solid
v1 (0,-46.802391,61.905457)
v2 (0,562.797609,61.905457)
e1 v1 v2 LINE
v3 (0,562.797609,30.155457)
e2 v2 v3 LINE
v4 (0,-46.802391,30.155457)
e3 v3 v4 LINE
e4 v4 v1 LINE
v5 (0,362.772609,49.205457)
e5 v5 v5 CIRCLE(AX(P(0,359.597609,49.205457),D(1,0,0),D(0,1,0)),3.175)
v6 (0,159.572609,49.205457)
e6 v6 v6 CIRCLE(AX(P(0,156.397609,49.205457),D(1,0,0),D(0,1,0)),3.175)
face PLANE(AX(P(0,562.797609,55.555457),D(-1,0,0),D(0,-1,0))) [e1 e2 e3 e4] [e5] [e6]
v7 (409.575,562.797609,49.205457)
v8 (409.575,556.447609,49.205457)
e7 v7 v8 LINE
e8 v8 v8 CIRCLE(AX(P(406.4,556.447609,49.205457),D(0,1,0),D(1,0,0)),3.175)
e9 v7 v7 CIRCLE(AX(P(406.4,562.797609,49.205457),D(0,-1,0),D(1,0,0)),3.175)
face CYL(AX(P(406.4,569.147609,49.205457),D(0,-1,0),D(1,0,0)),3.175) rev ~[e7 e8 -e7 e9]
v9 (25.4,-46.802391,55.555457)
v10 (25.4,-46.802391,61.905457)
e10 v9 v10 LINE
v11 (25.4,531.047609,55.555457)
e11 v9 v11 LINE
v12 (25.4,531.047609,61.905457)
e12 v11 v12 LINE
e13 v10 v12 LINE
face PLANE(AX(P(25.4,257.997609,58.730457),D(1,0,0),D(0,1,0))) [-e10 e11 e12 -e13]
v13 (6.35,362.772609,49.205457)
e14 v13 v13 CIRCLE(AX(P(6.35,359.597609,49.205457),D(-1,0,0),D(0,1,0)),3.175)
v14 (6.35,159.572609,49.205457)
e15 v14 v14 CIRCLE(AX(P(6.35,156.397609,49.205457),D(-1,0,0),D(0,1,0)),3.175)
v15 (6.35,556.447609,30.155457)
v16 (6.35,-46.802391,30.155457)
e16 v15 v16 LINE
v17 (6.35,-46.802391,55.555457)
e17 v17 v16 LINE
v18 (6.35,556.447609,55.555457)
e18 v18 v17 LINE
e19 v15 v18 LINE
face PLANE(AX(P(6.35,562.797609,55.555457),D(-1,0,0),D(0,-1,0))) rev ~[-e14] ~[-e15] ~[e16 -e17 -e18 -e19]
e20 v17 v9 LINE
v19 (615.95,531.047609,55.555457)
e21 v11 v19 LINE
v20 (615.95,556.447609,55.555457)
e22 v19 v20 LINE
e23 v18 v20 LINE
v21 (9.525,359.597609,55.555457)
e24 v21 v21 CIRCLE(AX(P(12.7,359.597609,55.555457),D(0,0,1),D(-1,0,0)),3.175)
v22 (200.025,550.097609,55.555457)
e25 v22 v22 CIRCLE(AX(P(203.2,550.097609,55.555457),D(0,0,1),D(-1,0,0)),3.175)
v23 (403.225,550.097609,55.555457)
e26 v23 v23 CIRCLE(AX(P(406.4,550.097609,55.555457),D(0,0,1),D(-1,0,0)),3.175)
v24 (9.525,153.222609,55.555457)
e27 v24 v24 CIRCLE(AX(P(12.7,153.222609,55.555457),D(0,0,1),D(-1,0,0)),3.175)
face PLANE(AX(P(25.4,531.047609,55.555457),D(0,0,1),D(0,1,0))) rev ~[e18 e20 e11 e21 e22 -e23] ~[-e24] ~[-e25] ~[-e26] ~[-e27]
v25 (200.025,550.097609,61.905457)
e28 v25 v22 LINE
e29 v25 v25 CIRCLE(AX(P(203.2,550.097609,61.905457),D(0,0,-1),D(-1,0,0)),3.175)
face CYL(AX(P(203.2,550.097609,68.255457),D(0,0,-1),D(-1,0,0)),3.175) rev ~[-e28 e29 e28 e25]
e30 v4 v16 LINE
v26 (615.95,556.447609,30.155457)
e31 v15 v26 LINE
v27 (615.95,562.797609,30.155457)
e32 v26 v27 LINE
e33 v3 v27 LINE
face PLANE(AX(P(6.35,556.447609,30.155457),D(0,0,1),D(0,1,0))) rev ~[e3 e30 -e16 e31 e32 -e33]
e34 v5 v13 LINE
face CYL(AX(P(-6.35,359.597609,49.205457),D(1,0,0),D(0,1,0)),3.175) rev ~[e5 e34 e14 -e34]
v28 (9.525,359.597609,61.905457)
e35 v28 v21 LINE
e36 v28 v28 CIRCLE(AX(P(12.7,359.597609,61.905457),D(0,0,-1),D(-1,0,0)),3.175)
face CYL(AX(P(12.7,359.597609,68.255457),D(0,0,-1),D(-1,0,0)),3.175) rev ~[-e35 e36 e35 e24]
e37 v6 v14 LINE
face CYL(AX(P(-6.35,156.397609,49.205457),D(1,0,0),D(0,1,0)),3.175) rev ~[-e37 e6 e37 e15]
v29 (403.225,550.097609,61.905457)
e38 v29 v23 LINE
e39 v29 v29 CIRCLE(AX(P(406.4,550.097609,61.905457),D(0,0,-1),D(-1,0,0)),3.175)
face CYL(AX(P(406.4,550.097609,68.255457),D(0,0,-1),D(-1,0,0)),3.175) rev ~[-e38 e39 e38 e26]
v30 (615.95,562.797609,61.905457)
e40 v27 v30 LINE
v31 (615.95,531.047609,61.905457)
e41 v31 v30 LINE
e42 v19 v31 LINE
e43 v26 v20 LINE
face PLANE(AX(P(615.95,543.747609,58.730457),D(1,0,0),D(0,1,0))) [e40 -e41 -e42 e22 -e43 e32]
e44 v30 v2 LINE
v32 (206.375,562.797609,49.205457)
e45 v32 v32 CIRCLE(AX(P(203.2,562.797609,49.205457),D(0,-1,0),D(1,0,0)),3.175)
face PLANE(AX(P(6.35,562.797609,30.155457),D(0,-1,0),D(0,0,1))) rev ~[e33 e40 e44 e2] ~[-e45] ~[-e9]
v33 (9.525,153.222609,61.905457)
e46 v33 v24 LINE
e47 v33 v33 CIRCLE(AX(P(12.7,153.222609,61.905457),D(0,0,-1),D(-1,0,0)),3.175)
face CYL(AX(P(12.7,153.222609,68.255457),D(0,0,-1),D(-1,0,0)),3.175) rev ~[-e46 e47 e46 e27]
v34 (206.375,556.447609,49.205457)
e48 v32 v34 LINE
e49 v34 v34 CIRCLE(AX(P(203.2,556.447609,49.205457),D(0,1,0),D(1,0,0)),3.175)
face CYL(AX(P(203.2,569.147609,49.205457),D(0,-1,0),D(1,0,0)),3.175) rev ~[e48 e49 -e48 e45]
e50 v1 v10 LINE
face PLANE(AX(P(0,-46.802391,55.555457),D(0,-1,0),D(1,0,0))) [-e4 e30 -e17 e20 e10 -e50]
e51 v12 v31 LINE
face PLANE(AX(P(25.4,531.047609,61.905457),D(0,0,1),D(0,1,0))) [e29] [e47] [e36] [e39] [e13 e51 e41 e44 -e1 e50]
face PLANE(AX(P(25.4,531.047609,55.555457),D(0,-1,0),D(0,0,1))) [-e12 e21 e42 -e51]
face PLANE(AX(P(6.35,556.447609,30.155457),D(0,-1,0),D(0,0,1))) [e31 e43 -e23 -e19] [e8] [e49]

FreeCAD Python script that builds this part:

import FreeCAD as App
import Part
import Sketcher
from FreeCAD import Vector
Q = App.Units.Quantity


def add_polygon(sketch, points):
    """Adds a closed chain of lines whose ends are joined by coincident constraints."""
    first, n = sketch.GeometryCount, len(points)
    for a, b in zip(points, points[1:] + points[:1]):
        sketch.addGeometry(Part.LineSegment(App.Vector(*a, 0), App.Vector(*b, 0)), False)
    for i in range(n):
        sketch.addConstraint(Sketcher.Constraint("Coincident", first + i, 2, first + (i + 1) % n, 1))

doc = App.newDocument("Part")
body = doc.addObject("PartDesign::Body", "Body")

sketch1 = body.newObject("Sketcher::SketchObject", "Sketch")
sketch1.AttachmentSupport = (doc.getObject("YZ_Plane"), [""])
sketch1.MapMode = "FlatFace"
add_polygon(sketch1, [(-47, 62), (-47, 56), (563, 56), (563, 62)])
sketch1.addConstraint(Sketcher.Constraint("Vertical", 0))
sketch1.addConstraint(Sketcher.Constraint("Horizontal", 1))
sketch1.addConstraint(Sketcher.Constraint("Vertical", 2))
sketch1.addConstraint(Sketcher.Constraint("Horizontal", 3))
sketch1.addConstraint(Sketcher.Constraint("DistanceX", 1, 1, 1, 2, Q("24 in")))
sketch1.addConstraint(Sketcher.Constraint("DistanceY", 0, 2, 0, 1, Q("0.25 in")))
sketch1.addConstraint(Sketcher.Constraint("DistanceX", 0, 2, -1, 1, Q("46.802391 mm")))
sketch1.addConstraint(Sketcher.Constraint("DistanceY", -1, 1, 0, 2, Q("55.555457 mm")))
pad1 = body.newObject("PartDesign::Pad", "Pad")
pad1.Profile = sketch1
pad1.Length = Q("1 in")

sketch2 = body.newObject("Sketcher::SketchObject", "Sketch001")
sketch2.AttachmentSupport = (doc.getObject("XY_Plane"), [""])
sketch2.MapMode = "FlatFace"
sketch2.AttachmentOffset = App.Placement(Vector(0, 0, 55.555457), App.Rotation())
add_polygon(sketch2, [(0, -47), (0, 563), (6, 563), (6, -47)])
sketch2.addConstraint(Sketcher.Constraint("Vertical", 0))
sketch2.addConstraint(Sketcher.Constraint("Horizontal", 1))
sketch2.addConstraint(Sketcher.Constraint("Vertical", 2))
sketch2.addConstraint(Sketcher.Constraint("Horizontal", 3))
sketch2.addConstraint(Sketcher.Constraint("PointOnObject", 0, 2, -2))
sketch2.addConstraint(Sketcher.Constraint("DistanceY", 0, 1, 0, 2, Q("24 in")))
sketch2.addConstraint(Sketcher.Constraint("DistanceX", 1, 1, 1, 2, Q("0.25 in")))
sketch2.addConstraint(Sketcher.Constraint("DistanceY", -1, 1, 0, 2, Q("562.797609 mm")))
pad2 = body.newObject("PartDesign::Pad", "Pad001")
pad2.Profile = sketch2
pad2.Length = Q("1 in")
pad2.Reversed = True

sketch3 = body.newObject("Sketcher::SketchObject", "Sketch002")
sketch3.AttachmentSupport = (doc.getObject("YZ_Plane"), [""])
sketch3.MapMode = "FlatFace"
sketch3.AttachmentOffset = App.Placement(Vector(0, 0, 0.25 * 25.4), App.Rotation())
add_polygon(sketch3, [(556, 62), (556, 30), (563, 30), (563, 62)])
sketch3.addConstraint(Sketcher.Constraint("Vertical", 0))
sketch3.addConstraint(Sketcher.Constraint("Horizontal", 1))
sketch3.addConstraint(Sketcher.Constraint("Vertical", 2))
sketch3.addConstraint(Sketcher.Constraint("Horizontal", 3))
sketch3.addConstraint(Sketcher.Constraint("DistanceX", 1, 1, 1, 2, Q("0.25 in")))
sketch3.addConstraint(Sketcher.Constraint("DistanceY", 0, 2, 0, 1, Q("1.25 in")))
sketch3.addConstraint(Sketcher.Constraint("DistanceX", -1, 1, 0, 2, Q("556.447609 mm")))
sketch3.addConstraint(Sketcher.Constraint("DistanceY", -1, 1, 0, 2, Q("30.155457 mm")))
pad3 = body.newObject("PartDesign::Pad", "Pad002")
pad3.Profile = sketch3
pad3.Length = Q("24 in")

sketch4 = body.newObject("Sketcher::SketchObject", "Sketch003")
sketch4.AttachmentSupport = (doc.getObject("YZ_Plane"), [""])
sketch4.MapMode = "FlatFace"
sketch4.AttachmentOffset = App.Placement(Vector(0, 0, 1 * 25.4), App.Rotation())
add_polygon(sketch4, [(531, 62), (531, 56), (556, 56), (556, 62)])
sketch4.addConstraint(Sketcher.Constraint("Vertical", 0))
sketch4.addConstraint(Sketcher.Constraint("Horizontal", 1))
sketch4.addConstraint(Sketcher.Constraint("Vertical", 2))
sketch4.addConstraint(Sketcher.Constraint("Horizontal", 3))
sketch4.addConstraint(Sketcher.Constraint("DistanceX", 1, 1, 1, 2, Q("1 in")))
sketch4.addConstraint(Sketcher.Constraint("DistanceY", 0, 2, 0, 1, Q("0.25 in")))
sketch4.addConstraint(Sketcher.Constraint("DistanceX", -1, 1, 0, 2, Q("531.047609 mm")))
sketch4.addConstraint(Sketcher.Constraint("DistanceY", -1, 1, 0, 2, Q("55.555457 mm")))
pad4 = body.newObject("PartDesign::Pad", "Pad003")
pad4.Profile = sketch4
pad4.Length = Q("23.25 in")

sketch5 = body.newObject("Sketcher::SketchObject", "Sketch004")
sketch5.AttachmentSupport = (doc.getObject("XY_Plane"), [""])
sketch5.MapMode = "FlatFace"
sketch5.AttachmentOffset = App.Placement(Vector(0, 0, 61.905457), App.Rotation())
sketch5.addGeometry(Part.Circle(Vector(12.7, 359.6, 0), Vector(0, 0, 1), 3.2), False)
sketch5.addGeometry(Part.Circle(Vector(12.7, 153.2, 0), Vector(0, 0, 1), 3.2), False)
sketch5.addConstraint(Sketcher.Constraint("Equal", 0, 1))
sketch5.addConstraint(Sketcher.Constraint("Vertical", 0, 3, 1, 3))
sketch5.addConstraint(Sketcher.Constraint("Diameter", 0, Q("0.25 in")))
sketch5.addConstraint(Sketcher.Constraint("DistanceX", -1, 1, 0, 3, Q("0.5 in")))
sketch5.addConstraint(Sketcher.Constraint("DistanceY", 1, 3, 0, 3, Q("8.125 in")))
sketch5.addConstraint(Sketcher.Constraint("DistanceY", -1, 1, 0, 3, Q("359.597609 mm")))
doc.recompute()
hole = body.newObject("PartDesign::Hole", "Hole")
hole.Profile = sketch5
hole.ThreadType = "None"
hole.Diameter = Q("0.25 in")
hole.DepthType = "Dimension"
hole.Depth = Q("0.25 in")
hole.DrillPoint = "Angled"
hole.DrillPointAngle = 118

sketch6 = body.newObject("Sketcher::SketchObject", "Sketch005")
sketch6.AttachmentSupport = (doc.getObject("YZ_Plane"), [""])
sketch6.MapMode = "FlatFace"
sketch6.addGeometry(Part.Circle(Vector(359.6, 49.2, 0), Vector(0, 0, 1), 3.2), False)
sketch6.addGeometry(Part.Circle(Vector(156.4, 49.2, 0), Vector(0, 0, 1), 3.2), False)
sketch6.addConstraint(Sketcher.Constraint("Equal", 0, 1))
sketch6.addConstraint(Sketcher.Constraint("Horizontal", 0, 3, 1, 3))
sketch6.addConstraint(Sketcher.Constraint("Diameter", 0, Q("0.25 in")))
sketch6.addConstraint(Sketcher.Constraint("DistanceX", 1, 3, 0, 3, Q("8 in")))
sketch6.addConstraint(Sketcher.Constraint("DistanceX", -1, 1, 0, 3, Q("359.597609 mm")))
sketch6.addConstraint(Sketcher.Constraint("DistanceY", -1, 1, 0, 3, Q("49.205457 mm")))
doc.recompute()
hole2 = body.newObject("PartDesign::Hole", "Hole001")
hole2.Profile = sketch6
hole2.ThreadType = "None"
hole2.Diameter = Q("0.25 in")
hole2.DepthType = "Dimension"
hole2.Depth = Q("0.25 in")
hole2.DrillPoint = "Angled"
hole2.DrillPointAngle = 118
hole2.Reversed = True

sketch7 = body.newObject("Sketcher::SketchObject", "Sketch006")
sketch7.AttachmentSupport = (doc.getObject("XZ_Plane"), [""])
sketch7.MapMode = "FlatFace"
sketch7.AttachmentOffset = App.Placement(Vector(0, 0, -562.797609), App.Rotation())
sketch7.addGeometry(Part.Circle(Vector(203.2, 49.2, 0), Vector(0, 0, 1), 3.2), False)
sketch7.addGeometry(Part.Circle(Vector(406.4, 49.2, 0), Vector(0, 0, 1), 3.2), False)
sketch7.addConstraint(Sketcher.Constraint("Equal", 0, 1))
sketch7.addConstraint(Sketcher.Constraint("Horizontal", 0, 3, 1, 3))
sketch7.addConstraint(Sketcher.Constraint("Diameter", 0, Q("0.25 in")))
sketch7.addConstraint(Sketcher.Constraint("DistanceX", -1, 1, 0, 3, Q("8 in")))
sketch7.addConstraint(Sketcher.Constraint("DistanceX", -1, 1, 1, 3, Q("16 in")))
sketch7.addConstraint(Sketcher.Constraint("DistanceY", -1, 1, 0, 3, Q("49.205457 mm")))
doc.recompute()
hole3 = body.newObject("PartDesign::Hole", "Hole002")
hole3.Profile = sketch7
hole3.ThreadType = "None"
hole3.Diameter = Q("0.25 in")
hole3.DepthType = "Dimension"
hole3.Depth = Q("0.25 in")
hole3.DrillPoint = "Angled"
hole3.DrillPointAngle = 118
hole3.Reversed = True

sketch8 = body.newObject("Sketcher::SketchObject", "Sketch007")
sketch8.AttachmentSupport = (doc.getObject("XY_Plane"), [""])
sketch8.MapMode = "FlatFace"
sketch8.AttachmentOffset = App.Placement(Vector(0, 0, 61.905457), App.Rotation())
sketch8.addGeometry(Part.Circle(Vector(406.4, 550.1, 0), Vector(0, 0, 1), 3.2), False)
sketch8.addGeometry(Part.Circle(Vector(203.2, 550.1, 0), Vector(0, 0, 1), 3.2), False)
sketch8.addConstraint(Sketcher.Constraint("Equal", 0, 1))
sketch8.addConstraint(Sketcher.Constraint("Horizontal", 0, 3, 1, 3))
sketch8.addConstraint(Sketcher.Constraint("Diameter", 0, Q("0.25 in")))
sketch8.addConstraint(Sketcher.Constraint("DistanceX", -1, 1, 0, 3, Q("16 in")))
sketch8.addConstraint(Sketcher.Constraint("DistanceX", -1, 1, 1, 3, Q("8 in")))
sketch8.addConstraint(Sketcher.Constraint("DistanceY", -1, 1, 0, 3, Q("550.097609 mm")))
doc.recompute()
hole4 = body.newObject("PartDesign::Hole", "Hole003")
hole4.Profile = sketch8
hole4.ThreadType = "None"
hole4.Diameter = Q("0.25 in")
hole4.DepthType = "Dimension"
hole4.Depth = Q("0.25 in")
hole4.DrillPoint = "Angled"
hole4.DrillPointAngle = 118

doc.recompute()
